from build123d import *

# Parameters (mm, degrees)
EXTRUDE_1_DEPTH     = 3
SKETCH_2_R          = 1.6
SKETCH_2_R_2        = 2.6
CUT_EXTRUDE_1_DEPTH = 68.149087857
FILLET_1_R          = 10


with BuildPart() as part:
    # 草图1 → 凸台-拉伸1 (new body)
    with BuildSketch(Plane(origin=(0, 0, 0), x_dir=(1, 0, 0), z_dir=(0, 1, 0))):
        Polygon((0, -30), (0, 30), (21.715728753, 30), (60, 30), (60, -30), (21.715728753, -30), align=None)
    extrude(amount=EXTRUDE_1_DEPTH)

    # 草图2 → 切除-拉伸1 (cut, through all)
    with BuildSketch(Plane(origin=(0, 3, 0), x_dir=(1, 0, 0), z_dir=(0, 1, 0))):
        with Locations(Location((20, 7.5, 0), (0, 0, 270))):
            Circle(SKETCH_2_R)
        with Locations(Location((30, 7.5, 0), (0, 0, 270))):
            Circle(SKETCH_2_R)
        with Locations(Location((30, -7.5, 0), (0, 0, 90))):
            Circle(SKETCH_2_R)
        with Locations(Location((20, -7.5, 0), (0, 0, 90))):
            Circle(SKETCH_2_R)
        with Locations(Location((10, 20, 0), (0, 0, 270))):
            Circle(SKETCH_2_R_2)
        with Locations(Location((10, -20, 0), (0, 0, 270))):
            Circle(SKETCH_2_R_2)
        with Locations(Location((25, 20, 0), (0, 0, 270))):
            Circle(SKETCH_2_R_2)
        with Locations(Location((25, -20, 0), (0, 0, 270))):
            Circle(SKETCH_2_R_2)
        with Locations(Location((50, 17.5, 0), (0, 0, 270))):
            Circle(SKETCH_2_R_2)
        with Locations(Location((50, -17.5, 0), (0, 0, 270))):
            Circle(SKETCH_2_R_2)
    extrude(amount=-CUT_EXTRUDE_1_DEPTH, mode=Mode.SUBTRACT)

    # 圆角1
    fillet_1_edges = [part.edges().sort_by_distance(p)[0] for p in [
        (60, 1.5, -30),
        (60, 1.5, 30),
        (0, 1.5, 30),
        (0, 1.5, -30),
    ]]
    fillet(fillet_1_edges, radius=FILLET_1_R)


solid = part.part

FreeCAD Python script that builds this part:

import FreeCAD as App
import Part
import Sketcher


def edges_at(feature, points):
    """Names of the edges that pass closest to the given points."""
    edges = feature.Shape.Edges
    near = lambda p: min(range(len(edges)), key=lambda i: edges[i].distToShape(Part.Vertex(*p))[0])
    return sorted({f"Edge{near(p) + 1}" for p in points})

doc = App.newDocument("Part")
body = doc.addObject("PartDesign::Body", "Body")

sketch1 = body.newObject("Sketcher::SketchObject", "Sketch")
sketch1.AttachmentSupport = (doc.getObject("XZ_Plane"), [""])
sketch1.MapMode = "FlatFace"
sketch1.addGeometry([
    Part.LineSegment(App.Vector(0, -30, 0), App.Vector(0, 30, 0)),
    Part.LineSegment(App.Vector(0, 30, 0), App.Vector(60, 30, 0)),
    Part.LineSegment(App.Vector(60, 30, 0), App.Vector(60, -30, 0)),
    Part.LineSegment(App.Vector(60, -30, 0), App.Vector(0, -30, 0)),
], False)
sketch1.addConstraint([
    Sketcher.Constraint("Coincident", 0, 2, 1, 1),
    Sketcher.Constraint("Coincident", 1, 2, 2, 1),
    Sketcher.Constraint("Coincident", 2, 2, 3, 1),
    Sketcher.Constraint("Coincident", 3, 2, 0, 1),
    Sketcher.Constraint("Vertical", 0),
    Sketcher.Constraint("Horizontal", 1),
    Sketcher.Constraint("Vertical", 2),
    Sketcher.Constraint("Horizontal", 3),
    Sketcher.Constraint("Symmetric", 0, 2, 3, 2, -1, 1),
    Sketcher.Constraint("Equal", 3, 0),
    Sketcher.Constraint("DistanceX", 1, 1, 1, 2, 60.0),
])
pad1 = body.newObject("PartDesign::Pad", "Pad")
pad1.Profile = sketch1
pad1.Length = 3
pad1.Reversed = True

sketch2 = body.newObject("Sketcher::SketchObject", "Sketch001")
sketch2.AttachmentSupport = (doc.getObject("XZ_Plane"), [""])
sketch2.MapMode = "FlatFace"
sketch2.AttachmentOffset = App.Placement(App.Vector(0, 0, -3), App.Rotation())
sketch2.addGeometry([
    Part.Circle(App.Vector(20, -7.5, 0), App.Vector(0, 0, 1), 1.6),
    Part.Circle(App.Vector(30, -7.5, 0), App.Vector(0, 0, 1), 1.6),
    Part.Circle(App.Vector(30, 7.5, 0), App.Vector(0, 0, 1), 1.6),
    Part.Circle(App.Vector(20, 7.5, 0), App.Vector(0, 0, 1), 1.6),
    Part.Circle(App.Vector(10, -20, 0), App.Vector(0, 0, 1), 2.6),
    Part.Circle(App.Vector(10, 20, 0), App.Vector(0, 0, 1), 2.6),
    Part.Circle(App.Vector(25, -20, 0), App.Vector(0, 0, 1), 2.6),
    Part.Circle(App.Vector(25, 20, 0), App.Vector(0, 0, 1), 2.6),
    Part.Circle(App.Vector(50, -17.5, 0), App.Vector(0, 0, 1), 2.6),
    Part.Circle(App.Vector(50, 17.5, 0), App.Vector(0, 0, 1), 2.6),
], False)
sketch2.addConstraint([
    Sketcher.Constraint("Equal", 0, 1),
    Sketcher.Constraint("Equal", 1, 2),
    Sketcher.Constraint("Equal", 2, 3),
    Sketcher.Constraint("Equal", 4, 5),
    Sketcher.Constraint("Equal", 5, 6),
    Sketcher.Constraint("Equal", 6, 7),
    Sketcher.Constraint("Equal", 7, 8),
    Sketcher.Constraint("Equal", 8, 9),
    Sketcher.Constraint("Symmetric", 1, 3, 2, 3, -1),
    Sketcher.Constraint("Symmetric", 0, 3, 3, 3, -1),
    Sketcher.Constraint("Symmetric", 4, 3, 5, 3, -1),
    Sketcher.Constraint("Symmetric", 6, 3, 7, 3, -1),
    Sketcher.Constraint("Symmetric", 8, 3, 9, 3, -1),
    Sketcher.Constraint("Horizontal", 0, 3, 1, 3),
    Sketcher.Constraint("Horizontal", 4, 3, 6, 3),
    Sketcher.Constraint("Diameter", 0, 3.2),
    Sketcher.Constraint("Diameter", 4, 5.2),
    Sketcher.Constraint("DistanceX", -1, 1, 0, 3, 20.0),
    Sketcher.Constraint("DistanceX", -1, 1, 1, 3, 30.0),
    Sketcher.Constraint("DistanceX", -1, 1, 4, 3, 10.0),
    Sketcher.Constraint("DistanceY", 4, 3, -1, 1, 20.0),
    Sketcher.Constraint("DistanceX", -1, 1, 6, 3, 25.0),
    Sketcher.Constraint("DistanceX", -1, 1, 8, 3, 50.0),
    Sketcher.Constraint("DistanceY", 1, 3, 2, 3, 15.0),
    Sketcher.Constraint("DistanceY", 8, 3, 1, 3, 10.0),
])
pocket1 = body.newObject("PartDesign::Pocket", "Pocket")
pocket1.Profile = sketch2
pocket1.Type = "ThroughAll"
pocket1.Reversed = True
doc.recompute()

fillet = body.newObject("PartDesign::Fillet", "Fillet")
fillet.Base = (pocket1, edges_at(pocket1, [
    (60, 1.5, -30),
    (60, 1.5, 30),
    (0, 1.5, 30),
    (0, 1.5, -30),
]))
fillet.Radius = 10

doc.recompute()
